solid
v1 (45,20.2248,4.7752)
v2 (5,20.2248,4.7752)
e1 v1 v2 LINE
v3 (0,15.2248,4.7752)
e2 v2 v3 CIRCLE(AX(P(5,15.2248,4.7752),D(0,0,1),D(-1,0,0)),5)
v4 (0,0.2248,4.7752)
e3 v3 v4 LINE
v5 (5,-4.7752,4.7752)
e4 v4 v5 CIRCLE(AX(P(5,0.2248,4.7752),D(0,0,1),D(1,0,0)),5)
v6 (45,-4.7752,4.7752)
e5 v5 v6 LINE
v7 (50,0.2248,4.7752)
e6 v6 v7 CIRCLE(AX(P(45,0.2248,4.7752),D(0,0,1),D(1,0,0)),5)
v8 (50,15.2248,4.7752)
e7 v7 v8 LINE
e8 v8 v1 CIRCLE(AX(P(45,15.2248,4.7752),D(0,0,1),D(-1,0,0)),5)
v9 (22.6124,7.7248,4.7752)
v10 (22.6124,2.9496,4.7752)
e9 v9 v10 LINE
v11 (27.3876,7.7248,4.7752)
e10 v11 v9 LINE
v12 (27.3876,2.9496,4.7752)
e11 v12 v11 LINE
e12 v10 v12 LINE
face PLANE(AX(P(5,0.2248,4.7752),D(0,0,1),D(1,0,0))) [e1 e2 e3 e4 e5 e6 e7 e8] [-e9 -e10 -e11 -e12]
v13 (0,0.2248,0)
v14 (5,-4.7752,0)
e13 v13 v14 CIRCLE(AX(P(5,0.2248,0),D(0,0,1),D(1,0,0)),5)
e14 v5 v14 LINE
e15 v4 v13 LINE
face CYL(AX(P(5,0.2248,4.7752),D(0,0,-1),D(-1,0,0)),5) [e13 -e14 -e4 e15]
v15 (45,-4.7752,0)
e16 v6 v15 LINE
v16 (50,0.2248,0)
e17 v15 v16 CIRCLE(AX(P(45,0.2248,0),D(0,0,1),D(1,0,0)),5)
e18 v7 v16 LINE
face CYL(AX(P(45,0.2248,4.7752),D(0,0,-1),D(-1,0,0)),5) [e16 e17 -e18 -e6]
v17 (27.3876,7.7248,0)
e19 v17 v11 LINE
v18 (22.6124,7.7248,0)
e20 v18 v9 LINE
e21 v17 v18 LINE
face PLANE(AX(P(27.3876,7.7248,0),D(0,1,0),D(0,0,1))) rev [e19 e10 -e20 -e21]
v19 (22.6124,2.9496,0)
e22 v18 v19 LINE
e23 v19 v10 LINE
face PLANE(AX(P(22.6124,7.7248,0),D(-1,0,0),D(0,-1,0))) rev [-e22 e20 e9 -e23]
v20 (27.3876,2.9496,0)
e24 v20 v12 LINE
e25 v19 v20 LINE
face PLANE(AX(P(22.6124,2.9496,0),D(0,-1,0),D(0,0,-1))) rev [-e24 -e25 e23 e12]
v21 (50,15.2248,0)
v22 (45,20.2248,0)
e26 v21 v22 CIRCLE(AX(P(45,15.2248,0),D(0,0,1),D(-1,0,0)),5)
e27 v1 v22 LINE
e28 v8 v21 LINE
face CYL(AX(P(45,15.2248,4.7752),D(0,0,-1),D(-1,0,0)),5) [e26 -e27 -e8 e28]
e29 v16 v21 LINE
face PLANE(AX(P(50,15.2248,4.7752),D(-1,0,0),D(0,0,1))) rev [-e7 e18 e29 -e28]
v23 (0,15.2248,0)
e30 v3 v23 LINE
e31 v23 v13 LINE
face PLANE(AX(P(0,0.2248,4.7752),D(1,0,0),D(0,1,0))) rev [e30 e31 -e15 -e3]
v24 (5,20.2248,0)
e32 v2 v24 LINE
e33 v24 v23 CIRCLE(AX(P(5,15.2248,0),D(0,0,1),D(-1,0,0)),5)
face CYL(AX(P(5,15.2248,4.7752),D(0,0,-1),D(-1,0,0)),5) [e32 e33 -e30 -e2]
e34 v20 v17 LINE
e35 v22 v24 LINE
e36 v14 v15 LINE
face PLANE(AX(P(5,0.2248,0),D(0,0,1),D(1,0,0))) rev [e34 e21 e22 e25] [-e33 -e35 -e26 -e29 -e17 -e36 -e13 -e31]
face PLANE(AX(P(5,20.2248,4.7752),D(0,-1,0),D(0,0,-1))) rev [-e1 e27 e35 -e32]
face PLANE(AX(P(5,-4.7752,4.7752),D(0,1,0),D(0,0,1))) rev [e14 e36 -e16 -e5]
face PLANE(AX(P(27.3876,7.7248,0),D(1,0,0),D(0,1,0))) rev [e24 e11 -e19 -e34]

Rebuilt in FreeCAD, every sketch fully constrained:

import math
import FreeCAD as App
import Part
import Sketcher

doc = App.newDocument("Part")
params = doc.addObject("Spreadsheet::Sheet", "Params")
for row, (alias, value) in enumerate([
    ("sketch1_radius", "5 mm"),
    ("sketch1_width", "40 mm"),
    ("sketch1_height", "15 mm"),
    ("pad1_length", "4.7752 mm"),
], start=1):
    params.set(f"A{row}", alias)
    params.set(f"B{row}", "=" + value)
    params.setAlias(f"B{row}", alias)

body = doc.addObject("PartDesign::Body", "Body")

# Sketch on XY plane
sketch1 = body.newObject("Sketcher::SketchObject", "Sketch")
sketch1.AttachmentSupport = (doc.getObject("XY_Plane"), [""])
sketch1.MapMode = "FlatFace"
sketch1.addGeometry([
    Part.LineSegment(App.Vector(5, -4.7752, 0), App.Vector(45, -4.7752, 0)),  # 0
    Part.ArcOfCircle(Part.Circle(App.Vector(45, 0.2248, 0), App.Vector(0, 0, 1), 5), math.radians(-90), math.radians(0)),  # 1
    Part.LineSegment(App.Vector(50, 0.2248, 0), App.Vector(50, 15.2248, 0)),  # 2
    Part.ArcOfCircle(Part.Circle(App.Vector(45, 15.2248, 0), App.Vector(0, 0, 1), 5), math.radians(0), math.radians(90)),  # 3
    Part.LineSegment(App.Vector(45, 20.2248, 0), App.Vector(5, 20.2248, 0)),  # 4
    Part.ArcOfCircle(Part.Circle(App.Vector(5, 15.2248, 0), App.Vector(0, 0, 1), 5), math.radians(90), math.radians(180)),  # 5
    Part.LineSegment(App.Vector(0, 15.2248, 0), App.Vector(0, 0.2248, 0)),  # 6
    Part.ArcOfCircle(Part.Circle(App.Vector(5, 0.2248, 0), App.Vector(0, 0, 1), 5), math.radians(180), math.radians(270)),  # 7
], False)
sketch1.addConstraint([
    Sketcher.Constraint("Tangent", 0, 2, 1, 1),
    Sketcher.Constraint("Tangent", 1, 2, 2, 1),
    Sketcher.Constraint("Tangent", 2, 2, 3, 1),
    Sketcher.Constraint("Tangent", 3, 2, 4, 1),
    Sketcher.Constraint("Tangent", 4, 2, 5, 1),
    Sketcher.Constraint("Tangent", 5, 2, 6, 1),
    Sketcher.Constraint("Tangent", 6, 2, 7, 1),
    Sketcher.Constraint("Tangent", 7, 2, 0, 1),
    Sketcher.Constraint("Horizontal", 0),
    Sketcher.Constraint("Vertical", 2),
    Sketcher.Constraint("Horizontal", 4),
    Sketcher.Constraint("Vertical", 6),
    Sketcher.Constraint("Equal", 1, 3),
    Sketcher.Constraint("Equal", 3, 5),
    Sketcher.Constraint("Equal", 5, 7),
    Sketcher.Constraint("PointOnObject", 5, 2, -2),
    Sketcher.Constraint("Radius", 1, 5.0),
    Sketcher.Constraint("DistanceX", 0, 1, 0, 2, 40.0),
    Sketcher.Constraint("DistanceY", 2, 1, 2, 2, 15.0),
    Sketcher.Constraint("DistanceY", -1, 1, 1, 3, 0.2248),
])
sketch1.setExpression("Constraints[16]", "Params.sketch1_radius")
sketch1.setExpression("Constraints[17]", "Params.sketch1_width")
sketch1.setExpression("Constraints[18]", "Params.sketch1_height")
pad1 = body.newObject("PartDesign::Pad", "Pad")
pad1.Profile = sketch1
pad1.setExpression("Length", "Params.pad1_length")

# Sketch on XY plane
sketch2 = body.newObject("Sketcher::SketchObject", "Sketch001")
sketch2.AttachmentSupport = (doc.getObject("XY_Plane"), [""])
sketch2.MapMode = "FlatFace"
sketch2.AttachmentOffset = App.Placement(App.Vector(0, 0, 4.7752), App.Rotation())
sketch2.addGeometry([
    Part.LineSegment(App.Vector(22.6124, 7.7248, 0), App.Vector(22.6124, 2.9496, 0)),
    Part.LineSegment(App.Vector(22.6124, 2.9496, 0), App.Vector(27.3876, 2.9496, 0)),
    Part.LineSegment(App.Vector(27.3876, 2.9496, 0), App.Vector(27.3876, 7.7248, 0)),
    Part.LineSegment(App.Vector(27.3876, 7.7248, 0), App.Vector(22.6124, 7.7248, 0)),
], False)
sketch2.addConstraint([
    Sketcher.Constraint("Coincident", 0, 2, 1, 1),
    Sketcher.Constraint("Coincident", 1, 2, 2, 1),
    Sketcher.Constraint("Coincident", 2, 2, 3, 1),
    Sketcher.Constraint("Coincident", 3, 2, 0, 1),
    Sketcher.Constraint("Vertical", 0),
    Sketcher.Constraint("Horizontal", 1),
    Sketcher.Constraint("Vertical", 2),
    Sketcher.Constraint("Horizontal", 3),
    Sketcher.Constraint("Equal", 3, 0),
    Sketcher.Constraint("DistanceX", 1, 1, 1, 2, 4.7752),
    Sketcher.Constraint("DistanceX", -1, 1, 0, 2, 22.6124),
    Sketcher.Constraint("DistanceY", -1, 1, 0, 2, 2.9496),
])
pocket1 = body.newObject("PartDesign::Pocket", "Pocket")
pocket1.Profile = sketch2
pocket1.Type = "ThroughAll"

doc.recompute()
